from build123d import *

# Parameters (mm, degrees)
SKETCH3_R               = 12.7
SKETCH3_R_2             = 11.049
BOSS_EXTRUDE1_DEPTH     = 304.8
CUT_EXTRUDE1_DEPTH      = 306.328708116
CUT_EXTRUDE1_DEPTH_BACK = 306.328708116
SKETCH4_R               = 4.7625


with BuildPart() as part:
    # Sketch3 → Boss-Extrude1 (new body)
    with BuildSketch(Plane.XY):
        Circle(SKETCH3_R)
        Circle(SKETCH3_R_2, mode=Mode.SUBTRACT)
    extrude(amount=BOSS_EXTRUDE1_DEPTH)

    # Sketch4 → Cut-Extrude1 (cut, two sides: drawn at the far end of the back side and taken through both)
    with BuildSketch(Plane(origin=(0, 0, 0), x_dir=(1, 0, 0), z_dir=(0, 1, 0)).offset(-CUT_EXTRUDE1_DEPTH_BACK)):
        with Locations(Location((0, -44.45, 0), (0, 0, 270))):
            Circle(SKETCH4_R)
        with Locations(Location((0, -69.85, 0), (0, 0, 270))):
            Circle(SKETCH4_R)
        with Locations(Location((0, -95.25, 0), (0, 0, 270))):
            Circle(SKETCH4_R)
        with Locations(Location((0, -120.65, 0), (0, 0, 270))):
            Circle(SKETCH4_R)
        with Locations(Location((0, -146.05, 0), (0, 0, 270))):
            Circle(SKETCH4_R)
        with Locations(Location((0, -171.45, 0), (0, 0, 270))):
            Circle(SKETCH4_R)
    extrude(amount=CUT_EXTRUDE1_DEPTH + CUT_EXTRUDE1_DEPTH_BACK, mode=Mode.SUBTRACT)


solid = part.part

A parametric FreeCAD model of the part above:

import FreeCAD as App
import Part
import Sketcher
Q = App.Units.Quantity

doc = App.newDocument("Part")
body = doc.addObject("PartDesign::Body", "Body")

sketch1 = doc.addObject("Sketcher::SketchObject", "Sketch")
body.addObject(sketch1)
sketch1.AttachmentSupport = (doc.XY_Plane, [""])
sketch1.MapMode = "FlatFace"
sketch1.addGeometry([
    Part.Circle(App.Vector(0, 0, 0), App.Vector(0, 0, 1), 13),
    Part.Circle(App.Vector(0, 0, 0), App.Vector(0, 0, 1), 11),
], False)
sketch1.addConstraint([
    Sketcher.Constraint("Coincident", 0, 3, -1, 1),
    Sketcher.Constraint("Coincident", 1, 3, -1, 1),
    Sketcher.Constraint("Diameter", 0, Q("1 in")),
    Sketcher.Constraint("Diameter", 1, Q("0.87 in")),
])
pad1 = doc.addObject("PartDesign::Pad", "Pad")
body.addObject(pad1)
pad1.Profile = sketch1
pad1.Length = Q("12 in")

sketch2 = doc.addObject("Sketcher::SketchObject", "Sketch001")
body.addObject(sketch2)
sketch2.AttachmentSupport = (doc.XZ_Plane, [""])
sketch2.MapMode = "FlatFace"
sketch2.addGeometry([
    Part.Circle(App.Vector(0, 44.5, 0), App.Vector(0, 0, 1), 4.8),
    Part.Circle(App.Vector(0, 69.8, 0), App.Vector(0, 0, 1), 4.8),
    Part.Circle(App.Vector(0, 95.2, 0), App.Vector(0, 0, 1), 4.8),
    Part.Circle(App.Vector(0, 120.7, 0), App.Vector(0, 0, 1), 4.8),
    Part.Circle(App.Vector(0, 146.1, 0), App.Vector(0, 0, 1), 4.8),
    Part.Circle(App.Vector(0, 171.4, 0), App.Vector(0, 0, 1), 4.8),
], False)
sketch2.addConstraint([
    Sketcher.Constraint("Equal", 0, 1),
    Sketcher.Constraint("Equal", 1, 2),
    Sketcher.Constraint("Equal", 2, 3),
    Sketcher.Constraint("Equal", 3, 4),
    Sketcher.Constraint("Equal", 4, 5),
    Sketcher.Constraint("PointOnObject", 0, 3, -2),
    Sketcher.Constraint("PointOnObject", 1, 3, -2),
    Sketcher.Constraint("PointOnObject", 2, 3, -2),
    Sketcher.Constraint("PointOnObject", 3, 3, -2),
    Sketcher.Constraint("PointOnObject", 4, 3, -2),
    Sketcher.Constraint("PointOnObject", 5, 3, -2),
    Sketcher.Constraint("Diameter", 0, Q("0.375 in")),
    Sketcher.Constraint("DistanceY", 0, 3, 1, 3, Q("1 in")),
    Sketcher.Constraint("DistanceY", 1, 3, 2, 3, Q("1 in")),
    Sketcher.Constraint("DistanceY", 2, 3, 3, 3, Q("1 in")),
    Sketcher.Constraint("DistanceY", 3, 3, 4, 3, Q("1 in")),
    Sketcher.Constraint("DistanceY", 4, 3, 5, 3, Q("1 in")),
    Sketcher.Constraint("DistanceY", -1, 1, 0, 3, Q("1.75 in")),
])
pocket1 = doc.addObject("PartDesign::Pocket", "Pocket")
body.addObject(pocket1)
pocket1.Profile = sketch2
pocket1.Type = "ThroughAll"
pocket1.Midplane = True

doc.recompute()
